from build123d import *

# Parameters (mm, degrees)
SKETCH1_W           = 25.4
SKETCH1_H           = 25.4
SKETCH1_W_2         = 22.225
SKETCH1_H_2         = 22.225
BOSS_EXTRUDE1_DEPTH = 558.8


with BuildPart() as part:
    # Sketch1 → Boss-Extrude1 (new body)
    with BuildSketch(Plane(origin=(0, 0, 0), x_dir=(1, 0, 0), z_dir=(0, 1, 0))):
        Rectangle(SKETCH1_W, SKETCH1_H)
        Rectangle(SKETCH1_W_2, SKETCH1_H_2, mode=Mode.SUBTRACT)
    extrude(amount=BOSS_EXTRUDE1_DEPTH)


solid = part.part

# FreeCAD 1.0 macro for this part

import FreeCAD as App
import Part
import Sketcher

V = App.Vector
Q = App.Units.Quantity

doc = App.newDocument("Part")
body = doc.addObject("PartDesign::Body", "Body")

# Sketch on XZ plane
sketch1 = body.newObject("Sketcher::SketchObject", "Sketch")
sketch1.AttachmentSupport = (doc.getObject("XZ_Plane"), [""])
sketch1.MapMode = "FlatFace"
sketch1.addGeometry(Part.LineSegment(V(-13, -13, 0), V(-13, 13, 0)), False)
sketch1.addGeometry(Part.LineSegment(V(-13, 13, 0), V(13, 13, 0)), False)
sketch1.addGeometry(Part.LineSegment(V(13, 13, 0), V(13, -13, 0)), False)
sketch1.addGeometry(Part.LineSegment(V(13, -13, 0), V(-13, -13, 0)), False)
sketch1.addGeometry(Part.LineSegment(V(11, 11, 0), V(-11, 11, 0)), False)
sketch1.addGeometry(Part.LineSegment(V(-11, 11, 0), V(-11, -11, 0)), False)
sketch1.addGeometry(Part.LineSegment(V(-11, -11, 0), V(11, -11, 0)), False)
sketch1.addGeometry(Part.LineSegment(V(11, -11, 0), V(11, 11, 0)), False)
sketch1.addConstraint(Sketcher.Constraint("Coincident", 0, 2, 1, 1))
sketch1.addConstraint(Sketcher.Constraint("Coincident", 1, 2, 2, 1))
sketch1.addConstraint(Sketcher.Constraint("Coincident", 2, 2, 3, 1))
sketch1.addConstraint(Sketcher.Constraint("Coincident", 3, 2, 0, 1))
sketch1.addConstraint(Sketcher.Constraint("Coincident", 4, 2, 5, 1))
sketch1.addConstraint(Sketcher.Constraint("Coincident", 5, 2, 6, 1))
sketch1.addConstraint(Sketcher.Constraint("Coincident", 6, 2, 7, 1))
sketch1.addConstraint(Sketcher.Constraint("Coincident", 7, 2, 4, 1))
sketch1.addConstraint(Sketcher.Constraint("Vertical", 0))
sketch1.addConstraint(Sketcher.Constraint("Horizontal", 1))
sketch1.addConstraint(Sketcher.Constraint("Vertical", 2))
sketch1.addConstraint(Sketcher.Constraint("Horizontal", 3))
sketch1.addConstraint(Sketcher.Constraint("Horizontal", 4))
sketch1.addConstraint(Sketcher.Constraint("Vertical", 5))
sketch1.addConstraint(Sketcher.Constraint("Horizontal", 6))
sketch1.addConstraint(Sketcher.Constraint("Vertical", 7))
sketch1.addConstraint(Sketcher.Constraint("Symmetric", 0, 2, 2, 2, -1, 1))
sketch1.addConstraint(Sketcher.Constraint("Symmetric", 4, 2, 6, 2, -1, 1))
sketch1.addConstraint(Sketcher.Constraint("Equal", 3, 0))
sketch1.addConstraint(Sketcher.Constraint("Equal", 6, 5))
sketch1.addConstraint(Sketcher.Constraint("DistanceX", 1, 1, 1, 2, Q("1 in")))
sketch1.addConstraint(Sketcher.Constraint("DistanceX", 4, 2, 4, 1, Q("0.875 in")))
pad1 = body.newObject("PartDesign::Pad", "Pad")
pad1.Profile = sketch1
pad1.Length = Q("22 in")
pad1.Reversed = True

doc.recompute()
